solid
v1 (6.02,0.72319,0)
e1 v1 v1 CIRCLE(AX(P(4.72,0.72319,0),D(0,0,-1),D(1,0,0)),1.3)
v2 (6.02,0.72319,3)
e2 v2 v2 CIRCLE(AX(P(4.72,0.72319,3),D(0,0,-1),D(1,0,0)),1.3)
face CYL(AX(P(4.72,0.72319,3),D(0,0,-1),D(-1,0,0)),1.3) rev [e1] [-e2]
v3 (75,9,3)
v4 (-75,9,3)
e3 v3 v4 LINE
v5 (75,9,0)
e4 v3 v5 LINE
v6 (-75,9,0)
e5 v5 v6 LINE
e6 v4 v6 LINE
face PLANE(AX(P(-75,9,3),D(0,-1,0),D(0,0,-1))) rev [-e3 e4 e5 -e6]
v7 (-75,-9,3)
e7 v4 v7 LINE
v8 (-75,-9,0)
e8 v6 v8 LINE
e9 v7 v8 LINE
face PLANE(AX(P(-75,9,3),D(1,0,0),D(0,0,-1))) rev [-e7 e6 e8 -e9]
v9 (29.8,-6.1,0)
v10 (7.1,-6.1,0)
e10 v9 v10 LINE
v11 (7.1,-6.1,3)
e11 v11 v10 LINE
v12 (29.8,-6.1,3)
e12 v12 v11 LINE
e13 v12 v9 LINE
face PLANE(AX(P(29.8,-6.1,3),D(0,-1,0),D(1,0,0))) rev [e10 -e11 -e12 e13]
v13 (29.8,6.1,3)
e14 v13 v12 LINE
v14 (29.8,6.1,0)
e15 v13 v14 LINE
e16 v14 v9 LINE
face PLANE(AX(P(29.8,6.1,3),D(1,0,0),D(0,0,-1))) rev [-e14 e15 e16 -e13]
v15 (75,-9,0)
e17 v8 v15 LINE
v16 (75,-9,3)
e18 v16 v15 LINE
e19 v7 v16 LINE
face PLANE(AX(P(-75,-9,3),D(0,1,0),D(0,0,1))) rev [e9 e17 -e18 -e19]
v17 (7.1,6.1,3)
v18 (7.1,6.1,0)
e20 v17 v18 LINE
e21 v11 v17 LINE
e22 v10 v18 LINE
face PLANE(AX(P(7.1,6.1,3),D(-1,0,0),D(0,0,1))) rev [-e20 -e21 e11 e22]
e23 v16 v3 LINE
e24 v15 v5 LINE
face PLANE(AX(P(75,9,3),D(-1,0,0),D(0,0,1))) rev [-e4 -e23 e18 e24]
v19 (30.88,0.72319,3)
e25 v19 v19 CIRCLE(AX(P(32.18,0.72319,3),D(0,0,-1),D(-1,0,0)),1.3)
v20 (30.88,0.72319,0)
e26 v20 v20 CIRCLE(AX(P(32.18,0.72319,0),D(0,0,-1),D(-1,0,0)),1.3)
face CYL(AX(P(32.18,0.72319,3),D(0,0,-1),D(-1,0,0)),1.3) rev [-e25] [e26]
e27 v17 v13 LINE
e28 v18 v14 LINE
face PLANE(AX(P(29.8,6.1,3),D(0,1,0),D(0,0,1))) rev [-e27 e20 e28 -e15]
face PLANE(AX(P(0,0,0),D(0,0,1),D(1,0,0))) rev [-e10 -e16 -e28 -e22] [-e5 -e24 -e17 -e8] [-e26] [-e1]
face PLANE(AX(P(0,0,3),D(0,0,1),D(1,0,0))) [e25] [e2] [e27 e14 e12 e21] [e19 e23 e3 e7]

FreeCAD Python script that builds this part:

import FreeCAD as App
import Part
import Sketcher

V = App.Vector
Q = App.Units.Quantity

doc = App.newDocument("Part")
body = doc.addObject("PartDesign::Body", "Body")

# Sketch on XY plane
sketch1 = body.newObject("Sketcher::SketchObject", "Sketch")
sketch1.AttachmentSupport = (doc.getObject("XY_Plane"), [""])
sketch1.MapMode = "FlatFace"
sketch1.addGeometry([
    Part.LineSegment(V(-75, 9, 0), V(-75, -9, 0)),
    Part.LineSegment(V(-75, -9, 0), V(75, -9, 0)),
    Part.LineSegment(V(75, -9, 0), V(75, 9, 0)),
    Part.LineSegment(V(75, 9, 0), V(-75, 9, 0)),
], False)
sketch1.addConstraint([
    Sketcher.Constraint("Coincident", 0, 2, 1, 1),
    Sketcher.Constraint("Coincident", 1, 2, 2, 1),
    Sketcher.Constraint("Coincident", 2, 2, 3, 1),
    Sketcher.Constraint("Coincident", 3, 2, 0, 1),
    Sketcher.Constraint("Vertical", 0),
    Sketcher.Constraint("Horizontal", 1),
    Sketcher.Constraint("Vertical", 2),
    Sketcher.Constraint("Horizontal", 3),
    Sketcher.Constraint("Symmetric", 0, 2, 2, 2, -1, 1),
    Sketcher.Constraint("DistanceX", 1, 1, 1, 2, Q("150 mm")),
    Sketcher.Constraint("DistanceY", 0, 2, 0, 1, Q("18 mm")),
])
pad1 = body.newObject("PartDesign::Pad", "Pad")
pad1.Profile = sketch1
pad1.Length = 3

# Sketch on XY plane
sketch2 = body.newObject("Sketcher::SketchObject", "Sketch001")
sketch2.AttachmentSupport = (doc.getObject("XY_Plane"), [""])
sketch2.MapMode = "FlatFace"
sketch2.addGeometry([
    Part.LineSegment(V(30, 6, 0), V(30, -6, 0)),
    Part.LineSegment(V(30, -6, 0), V(7, -6, 0)),
    Part.LineSegment(V(7, -6, 0), V(7, 6, 0)),
    Part.LineSegment(V(7, 6, 0), V(30, 6, 0)),
], False)
sketch2.addConstraint([
    Sketcher.Constraint("Coincident", 0, 2, 1, 1),
    Sketcher.Constraint("Coincident", 1, 2, 2, 1),
    Sketcher.Constraint("Coincident", 2, 2, 3, 1),
    Sketcher.Constraint("Coincident", 3, 2, 0, 1),
    Sketcher.Constraint("Vertical", 0),
    Sketcher.Constraint("Horizontal", 1),
    Sketcher.Constraint("Vertical", 2),
    Sketcher.Constraint("Horizontal", 3),
    Sketcher.Constraint("DistanceX", 1, 2, 1, 1, Q("22.7 mm")),
    Sketcher.Constraint("DistanceY", 0, 2, 0, 1, Q("12.2 mm")),
    Sketcher.Constraint("DistanceX", -1, 1, 0, 2, Q("29.8 mm")),
    Sketcher.Constraint("DistanceY", 0, 2, -1, 1, Q("6.1 mm")),
])
pocket1 = body.newObject("PartDesign::Pocket", "Pocket")
pocket1.Profile = sketch2
pocket1.Length = 3
pocket1.Reversed = True

# Sketch on XY plane
sketch3 = body.newObject("Sketcher::SketchObject", "Sketch002")
sketch3.AttachmentSupport = (doc.getObject("XY_Plane"), [""])
sketch3.MapMode = "FlatFace"
sketch3.AttachmentOffset = App.Placement(V(0, 0, 3), App.Rotation())
sketch3.addGeometry(Part.Circle(V(32.2, 0.1, 0), V(0, 0, 1), 1.2), False)
sketch3.addConstraint([
    Sketcher.Constraint("Diameter", 0, Q("2.4 mm")),
    Sketcher.Constraint("DistanceY", -1, 1, 0, 3, Q("0.1 mm")),
    Sketcher.Constraint("DistanceX", -1, 1, 0, 3, Q("32.175 mm")),
])
pad2 = body.newObject("PartDesign::Pad", "Pad001")
pad2.Profile = sketch3
pad2.Length = 3
pad2.Reversed = True

# Sketch on XY plane
sketch4 = body.newObject("Sketcher::SketchObject", "Sketch003")
sketch4.AttachmentSupport = (doc.getObject("XY_Plane"), [""])
sketch4.MapMode = "FlatFace"
sketch4.addGeometry([
    Part.Circle(V(32.2, 0.7, 0), V(0, 0, 1), 1.3),
    Part.Circle(V(4.7, 0.7, 0), V(0, 0, 1), 1.3),
], False)
sketch4.addConstraint([
    Sketcher.Constraint("Equal", 0, 1),
    Sketcher.Constraint("Horizontal", 0, 3, 1, 3),
    Sketcher.Constraint("Diameter", 0, Q("2.6 mm")),
    Sketcher.Constraint("DistanceX", -1, 1, 0, 3, Q("32.18 mm")),
    Sketcher.Constraint("DistanceX", -1, 1, 1, 3, Q("4.72 mm")),
    Sketcher.Constraint("DistanceY", -1, 1, 0, 3, Q("0.72319 mm")),
])
pocket2 = body.newObject("PartDesign::Pocket", "Pocket001")
pocket2.Profile = sketch4
pocket2.Length = 3
pocket2.Reversed = True

doc.recompute()
